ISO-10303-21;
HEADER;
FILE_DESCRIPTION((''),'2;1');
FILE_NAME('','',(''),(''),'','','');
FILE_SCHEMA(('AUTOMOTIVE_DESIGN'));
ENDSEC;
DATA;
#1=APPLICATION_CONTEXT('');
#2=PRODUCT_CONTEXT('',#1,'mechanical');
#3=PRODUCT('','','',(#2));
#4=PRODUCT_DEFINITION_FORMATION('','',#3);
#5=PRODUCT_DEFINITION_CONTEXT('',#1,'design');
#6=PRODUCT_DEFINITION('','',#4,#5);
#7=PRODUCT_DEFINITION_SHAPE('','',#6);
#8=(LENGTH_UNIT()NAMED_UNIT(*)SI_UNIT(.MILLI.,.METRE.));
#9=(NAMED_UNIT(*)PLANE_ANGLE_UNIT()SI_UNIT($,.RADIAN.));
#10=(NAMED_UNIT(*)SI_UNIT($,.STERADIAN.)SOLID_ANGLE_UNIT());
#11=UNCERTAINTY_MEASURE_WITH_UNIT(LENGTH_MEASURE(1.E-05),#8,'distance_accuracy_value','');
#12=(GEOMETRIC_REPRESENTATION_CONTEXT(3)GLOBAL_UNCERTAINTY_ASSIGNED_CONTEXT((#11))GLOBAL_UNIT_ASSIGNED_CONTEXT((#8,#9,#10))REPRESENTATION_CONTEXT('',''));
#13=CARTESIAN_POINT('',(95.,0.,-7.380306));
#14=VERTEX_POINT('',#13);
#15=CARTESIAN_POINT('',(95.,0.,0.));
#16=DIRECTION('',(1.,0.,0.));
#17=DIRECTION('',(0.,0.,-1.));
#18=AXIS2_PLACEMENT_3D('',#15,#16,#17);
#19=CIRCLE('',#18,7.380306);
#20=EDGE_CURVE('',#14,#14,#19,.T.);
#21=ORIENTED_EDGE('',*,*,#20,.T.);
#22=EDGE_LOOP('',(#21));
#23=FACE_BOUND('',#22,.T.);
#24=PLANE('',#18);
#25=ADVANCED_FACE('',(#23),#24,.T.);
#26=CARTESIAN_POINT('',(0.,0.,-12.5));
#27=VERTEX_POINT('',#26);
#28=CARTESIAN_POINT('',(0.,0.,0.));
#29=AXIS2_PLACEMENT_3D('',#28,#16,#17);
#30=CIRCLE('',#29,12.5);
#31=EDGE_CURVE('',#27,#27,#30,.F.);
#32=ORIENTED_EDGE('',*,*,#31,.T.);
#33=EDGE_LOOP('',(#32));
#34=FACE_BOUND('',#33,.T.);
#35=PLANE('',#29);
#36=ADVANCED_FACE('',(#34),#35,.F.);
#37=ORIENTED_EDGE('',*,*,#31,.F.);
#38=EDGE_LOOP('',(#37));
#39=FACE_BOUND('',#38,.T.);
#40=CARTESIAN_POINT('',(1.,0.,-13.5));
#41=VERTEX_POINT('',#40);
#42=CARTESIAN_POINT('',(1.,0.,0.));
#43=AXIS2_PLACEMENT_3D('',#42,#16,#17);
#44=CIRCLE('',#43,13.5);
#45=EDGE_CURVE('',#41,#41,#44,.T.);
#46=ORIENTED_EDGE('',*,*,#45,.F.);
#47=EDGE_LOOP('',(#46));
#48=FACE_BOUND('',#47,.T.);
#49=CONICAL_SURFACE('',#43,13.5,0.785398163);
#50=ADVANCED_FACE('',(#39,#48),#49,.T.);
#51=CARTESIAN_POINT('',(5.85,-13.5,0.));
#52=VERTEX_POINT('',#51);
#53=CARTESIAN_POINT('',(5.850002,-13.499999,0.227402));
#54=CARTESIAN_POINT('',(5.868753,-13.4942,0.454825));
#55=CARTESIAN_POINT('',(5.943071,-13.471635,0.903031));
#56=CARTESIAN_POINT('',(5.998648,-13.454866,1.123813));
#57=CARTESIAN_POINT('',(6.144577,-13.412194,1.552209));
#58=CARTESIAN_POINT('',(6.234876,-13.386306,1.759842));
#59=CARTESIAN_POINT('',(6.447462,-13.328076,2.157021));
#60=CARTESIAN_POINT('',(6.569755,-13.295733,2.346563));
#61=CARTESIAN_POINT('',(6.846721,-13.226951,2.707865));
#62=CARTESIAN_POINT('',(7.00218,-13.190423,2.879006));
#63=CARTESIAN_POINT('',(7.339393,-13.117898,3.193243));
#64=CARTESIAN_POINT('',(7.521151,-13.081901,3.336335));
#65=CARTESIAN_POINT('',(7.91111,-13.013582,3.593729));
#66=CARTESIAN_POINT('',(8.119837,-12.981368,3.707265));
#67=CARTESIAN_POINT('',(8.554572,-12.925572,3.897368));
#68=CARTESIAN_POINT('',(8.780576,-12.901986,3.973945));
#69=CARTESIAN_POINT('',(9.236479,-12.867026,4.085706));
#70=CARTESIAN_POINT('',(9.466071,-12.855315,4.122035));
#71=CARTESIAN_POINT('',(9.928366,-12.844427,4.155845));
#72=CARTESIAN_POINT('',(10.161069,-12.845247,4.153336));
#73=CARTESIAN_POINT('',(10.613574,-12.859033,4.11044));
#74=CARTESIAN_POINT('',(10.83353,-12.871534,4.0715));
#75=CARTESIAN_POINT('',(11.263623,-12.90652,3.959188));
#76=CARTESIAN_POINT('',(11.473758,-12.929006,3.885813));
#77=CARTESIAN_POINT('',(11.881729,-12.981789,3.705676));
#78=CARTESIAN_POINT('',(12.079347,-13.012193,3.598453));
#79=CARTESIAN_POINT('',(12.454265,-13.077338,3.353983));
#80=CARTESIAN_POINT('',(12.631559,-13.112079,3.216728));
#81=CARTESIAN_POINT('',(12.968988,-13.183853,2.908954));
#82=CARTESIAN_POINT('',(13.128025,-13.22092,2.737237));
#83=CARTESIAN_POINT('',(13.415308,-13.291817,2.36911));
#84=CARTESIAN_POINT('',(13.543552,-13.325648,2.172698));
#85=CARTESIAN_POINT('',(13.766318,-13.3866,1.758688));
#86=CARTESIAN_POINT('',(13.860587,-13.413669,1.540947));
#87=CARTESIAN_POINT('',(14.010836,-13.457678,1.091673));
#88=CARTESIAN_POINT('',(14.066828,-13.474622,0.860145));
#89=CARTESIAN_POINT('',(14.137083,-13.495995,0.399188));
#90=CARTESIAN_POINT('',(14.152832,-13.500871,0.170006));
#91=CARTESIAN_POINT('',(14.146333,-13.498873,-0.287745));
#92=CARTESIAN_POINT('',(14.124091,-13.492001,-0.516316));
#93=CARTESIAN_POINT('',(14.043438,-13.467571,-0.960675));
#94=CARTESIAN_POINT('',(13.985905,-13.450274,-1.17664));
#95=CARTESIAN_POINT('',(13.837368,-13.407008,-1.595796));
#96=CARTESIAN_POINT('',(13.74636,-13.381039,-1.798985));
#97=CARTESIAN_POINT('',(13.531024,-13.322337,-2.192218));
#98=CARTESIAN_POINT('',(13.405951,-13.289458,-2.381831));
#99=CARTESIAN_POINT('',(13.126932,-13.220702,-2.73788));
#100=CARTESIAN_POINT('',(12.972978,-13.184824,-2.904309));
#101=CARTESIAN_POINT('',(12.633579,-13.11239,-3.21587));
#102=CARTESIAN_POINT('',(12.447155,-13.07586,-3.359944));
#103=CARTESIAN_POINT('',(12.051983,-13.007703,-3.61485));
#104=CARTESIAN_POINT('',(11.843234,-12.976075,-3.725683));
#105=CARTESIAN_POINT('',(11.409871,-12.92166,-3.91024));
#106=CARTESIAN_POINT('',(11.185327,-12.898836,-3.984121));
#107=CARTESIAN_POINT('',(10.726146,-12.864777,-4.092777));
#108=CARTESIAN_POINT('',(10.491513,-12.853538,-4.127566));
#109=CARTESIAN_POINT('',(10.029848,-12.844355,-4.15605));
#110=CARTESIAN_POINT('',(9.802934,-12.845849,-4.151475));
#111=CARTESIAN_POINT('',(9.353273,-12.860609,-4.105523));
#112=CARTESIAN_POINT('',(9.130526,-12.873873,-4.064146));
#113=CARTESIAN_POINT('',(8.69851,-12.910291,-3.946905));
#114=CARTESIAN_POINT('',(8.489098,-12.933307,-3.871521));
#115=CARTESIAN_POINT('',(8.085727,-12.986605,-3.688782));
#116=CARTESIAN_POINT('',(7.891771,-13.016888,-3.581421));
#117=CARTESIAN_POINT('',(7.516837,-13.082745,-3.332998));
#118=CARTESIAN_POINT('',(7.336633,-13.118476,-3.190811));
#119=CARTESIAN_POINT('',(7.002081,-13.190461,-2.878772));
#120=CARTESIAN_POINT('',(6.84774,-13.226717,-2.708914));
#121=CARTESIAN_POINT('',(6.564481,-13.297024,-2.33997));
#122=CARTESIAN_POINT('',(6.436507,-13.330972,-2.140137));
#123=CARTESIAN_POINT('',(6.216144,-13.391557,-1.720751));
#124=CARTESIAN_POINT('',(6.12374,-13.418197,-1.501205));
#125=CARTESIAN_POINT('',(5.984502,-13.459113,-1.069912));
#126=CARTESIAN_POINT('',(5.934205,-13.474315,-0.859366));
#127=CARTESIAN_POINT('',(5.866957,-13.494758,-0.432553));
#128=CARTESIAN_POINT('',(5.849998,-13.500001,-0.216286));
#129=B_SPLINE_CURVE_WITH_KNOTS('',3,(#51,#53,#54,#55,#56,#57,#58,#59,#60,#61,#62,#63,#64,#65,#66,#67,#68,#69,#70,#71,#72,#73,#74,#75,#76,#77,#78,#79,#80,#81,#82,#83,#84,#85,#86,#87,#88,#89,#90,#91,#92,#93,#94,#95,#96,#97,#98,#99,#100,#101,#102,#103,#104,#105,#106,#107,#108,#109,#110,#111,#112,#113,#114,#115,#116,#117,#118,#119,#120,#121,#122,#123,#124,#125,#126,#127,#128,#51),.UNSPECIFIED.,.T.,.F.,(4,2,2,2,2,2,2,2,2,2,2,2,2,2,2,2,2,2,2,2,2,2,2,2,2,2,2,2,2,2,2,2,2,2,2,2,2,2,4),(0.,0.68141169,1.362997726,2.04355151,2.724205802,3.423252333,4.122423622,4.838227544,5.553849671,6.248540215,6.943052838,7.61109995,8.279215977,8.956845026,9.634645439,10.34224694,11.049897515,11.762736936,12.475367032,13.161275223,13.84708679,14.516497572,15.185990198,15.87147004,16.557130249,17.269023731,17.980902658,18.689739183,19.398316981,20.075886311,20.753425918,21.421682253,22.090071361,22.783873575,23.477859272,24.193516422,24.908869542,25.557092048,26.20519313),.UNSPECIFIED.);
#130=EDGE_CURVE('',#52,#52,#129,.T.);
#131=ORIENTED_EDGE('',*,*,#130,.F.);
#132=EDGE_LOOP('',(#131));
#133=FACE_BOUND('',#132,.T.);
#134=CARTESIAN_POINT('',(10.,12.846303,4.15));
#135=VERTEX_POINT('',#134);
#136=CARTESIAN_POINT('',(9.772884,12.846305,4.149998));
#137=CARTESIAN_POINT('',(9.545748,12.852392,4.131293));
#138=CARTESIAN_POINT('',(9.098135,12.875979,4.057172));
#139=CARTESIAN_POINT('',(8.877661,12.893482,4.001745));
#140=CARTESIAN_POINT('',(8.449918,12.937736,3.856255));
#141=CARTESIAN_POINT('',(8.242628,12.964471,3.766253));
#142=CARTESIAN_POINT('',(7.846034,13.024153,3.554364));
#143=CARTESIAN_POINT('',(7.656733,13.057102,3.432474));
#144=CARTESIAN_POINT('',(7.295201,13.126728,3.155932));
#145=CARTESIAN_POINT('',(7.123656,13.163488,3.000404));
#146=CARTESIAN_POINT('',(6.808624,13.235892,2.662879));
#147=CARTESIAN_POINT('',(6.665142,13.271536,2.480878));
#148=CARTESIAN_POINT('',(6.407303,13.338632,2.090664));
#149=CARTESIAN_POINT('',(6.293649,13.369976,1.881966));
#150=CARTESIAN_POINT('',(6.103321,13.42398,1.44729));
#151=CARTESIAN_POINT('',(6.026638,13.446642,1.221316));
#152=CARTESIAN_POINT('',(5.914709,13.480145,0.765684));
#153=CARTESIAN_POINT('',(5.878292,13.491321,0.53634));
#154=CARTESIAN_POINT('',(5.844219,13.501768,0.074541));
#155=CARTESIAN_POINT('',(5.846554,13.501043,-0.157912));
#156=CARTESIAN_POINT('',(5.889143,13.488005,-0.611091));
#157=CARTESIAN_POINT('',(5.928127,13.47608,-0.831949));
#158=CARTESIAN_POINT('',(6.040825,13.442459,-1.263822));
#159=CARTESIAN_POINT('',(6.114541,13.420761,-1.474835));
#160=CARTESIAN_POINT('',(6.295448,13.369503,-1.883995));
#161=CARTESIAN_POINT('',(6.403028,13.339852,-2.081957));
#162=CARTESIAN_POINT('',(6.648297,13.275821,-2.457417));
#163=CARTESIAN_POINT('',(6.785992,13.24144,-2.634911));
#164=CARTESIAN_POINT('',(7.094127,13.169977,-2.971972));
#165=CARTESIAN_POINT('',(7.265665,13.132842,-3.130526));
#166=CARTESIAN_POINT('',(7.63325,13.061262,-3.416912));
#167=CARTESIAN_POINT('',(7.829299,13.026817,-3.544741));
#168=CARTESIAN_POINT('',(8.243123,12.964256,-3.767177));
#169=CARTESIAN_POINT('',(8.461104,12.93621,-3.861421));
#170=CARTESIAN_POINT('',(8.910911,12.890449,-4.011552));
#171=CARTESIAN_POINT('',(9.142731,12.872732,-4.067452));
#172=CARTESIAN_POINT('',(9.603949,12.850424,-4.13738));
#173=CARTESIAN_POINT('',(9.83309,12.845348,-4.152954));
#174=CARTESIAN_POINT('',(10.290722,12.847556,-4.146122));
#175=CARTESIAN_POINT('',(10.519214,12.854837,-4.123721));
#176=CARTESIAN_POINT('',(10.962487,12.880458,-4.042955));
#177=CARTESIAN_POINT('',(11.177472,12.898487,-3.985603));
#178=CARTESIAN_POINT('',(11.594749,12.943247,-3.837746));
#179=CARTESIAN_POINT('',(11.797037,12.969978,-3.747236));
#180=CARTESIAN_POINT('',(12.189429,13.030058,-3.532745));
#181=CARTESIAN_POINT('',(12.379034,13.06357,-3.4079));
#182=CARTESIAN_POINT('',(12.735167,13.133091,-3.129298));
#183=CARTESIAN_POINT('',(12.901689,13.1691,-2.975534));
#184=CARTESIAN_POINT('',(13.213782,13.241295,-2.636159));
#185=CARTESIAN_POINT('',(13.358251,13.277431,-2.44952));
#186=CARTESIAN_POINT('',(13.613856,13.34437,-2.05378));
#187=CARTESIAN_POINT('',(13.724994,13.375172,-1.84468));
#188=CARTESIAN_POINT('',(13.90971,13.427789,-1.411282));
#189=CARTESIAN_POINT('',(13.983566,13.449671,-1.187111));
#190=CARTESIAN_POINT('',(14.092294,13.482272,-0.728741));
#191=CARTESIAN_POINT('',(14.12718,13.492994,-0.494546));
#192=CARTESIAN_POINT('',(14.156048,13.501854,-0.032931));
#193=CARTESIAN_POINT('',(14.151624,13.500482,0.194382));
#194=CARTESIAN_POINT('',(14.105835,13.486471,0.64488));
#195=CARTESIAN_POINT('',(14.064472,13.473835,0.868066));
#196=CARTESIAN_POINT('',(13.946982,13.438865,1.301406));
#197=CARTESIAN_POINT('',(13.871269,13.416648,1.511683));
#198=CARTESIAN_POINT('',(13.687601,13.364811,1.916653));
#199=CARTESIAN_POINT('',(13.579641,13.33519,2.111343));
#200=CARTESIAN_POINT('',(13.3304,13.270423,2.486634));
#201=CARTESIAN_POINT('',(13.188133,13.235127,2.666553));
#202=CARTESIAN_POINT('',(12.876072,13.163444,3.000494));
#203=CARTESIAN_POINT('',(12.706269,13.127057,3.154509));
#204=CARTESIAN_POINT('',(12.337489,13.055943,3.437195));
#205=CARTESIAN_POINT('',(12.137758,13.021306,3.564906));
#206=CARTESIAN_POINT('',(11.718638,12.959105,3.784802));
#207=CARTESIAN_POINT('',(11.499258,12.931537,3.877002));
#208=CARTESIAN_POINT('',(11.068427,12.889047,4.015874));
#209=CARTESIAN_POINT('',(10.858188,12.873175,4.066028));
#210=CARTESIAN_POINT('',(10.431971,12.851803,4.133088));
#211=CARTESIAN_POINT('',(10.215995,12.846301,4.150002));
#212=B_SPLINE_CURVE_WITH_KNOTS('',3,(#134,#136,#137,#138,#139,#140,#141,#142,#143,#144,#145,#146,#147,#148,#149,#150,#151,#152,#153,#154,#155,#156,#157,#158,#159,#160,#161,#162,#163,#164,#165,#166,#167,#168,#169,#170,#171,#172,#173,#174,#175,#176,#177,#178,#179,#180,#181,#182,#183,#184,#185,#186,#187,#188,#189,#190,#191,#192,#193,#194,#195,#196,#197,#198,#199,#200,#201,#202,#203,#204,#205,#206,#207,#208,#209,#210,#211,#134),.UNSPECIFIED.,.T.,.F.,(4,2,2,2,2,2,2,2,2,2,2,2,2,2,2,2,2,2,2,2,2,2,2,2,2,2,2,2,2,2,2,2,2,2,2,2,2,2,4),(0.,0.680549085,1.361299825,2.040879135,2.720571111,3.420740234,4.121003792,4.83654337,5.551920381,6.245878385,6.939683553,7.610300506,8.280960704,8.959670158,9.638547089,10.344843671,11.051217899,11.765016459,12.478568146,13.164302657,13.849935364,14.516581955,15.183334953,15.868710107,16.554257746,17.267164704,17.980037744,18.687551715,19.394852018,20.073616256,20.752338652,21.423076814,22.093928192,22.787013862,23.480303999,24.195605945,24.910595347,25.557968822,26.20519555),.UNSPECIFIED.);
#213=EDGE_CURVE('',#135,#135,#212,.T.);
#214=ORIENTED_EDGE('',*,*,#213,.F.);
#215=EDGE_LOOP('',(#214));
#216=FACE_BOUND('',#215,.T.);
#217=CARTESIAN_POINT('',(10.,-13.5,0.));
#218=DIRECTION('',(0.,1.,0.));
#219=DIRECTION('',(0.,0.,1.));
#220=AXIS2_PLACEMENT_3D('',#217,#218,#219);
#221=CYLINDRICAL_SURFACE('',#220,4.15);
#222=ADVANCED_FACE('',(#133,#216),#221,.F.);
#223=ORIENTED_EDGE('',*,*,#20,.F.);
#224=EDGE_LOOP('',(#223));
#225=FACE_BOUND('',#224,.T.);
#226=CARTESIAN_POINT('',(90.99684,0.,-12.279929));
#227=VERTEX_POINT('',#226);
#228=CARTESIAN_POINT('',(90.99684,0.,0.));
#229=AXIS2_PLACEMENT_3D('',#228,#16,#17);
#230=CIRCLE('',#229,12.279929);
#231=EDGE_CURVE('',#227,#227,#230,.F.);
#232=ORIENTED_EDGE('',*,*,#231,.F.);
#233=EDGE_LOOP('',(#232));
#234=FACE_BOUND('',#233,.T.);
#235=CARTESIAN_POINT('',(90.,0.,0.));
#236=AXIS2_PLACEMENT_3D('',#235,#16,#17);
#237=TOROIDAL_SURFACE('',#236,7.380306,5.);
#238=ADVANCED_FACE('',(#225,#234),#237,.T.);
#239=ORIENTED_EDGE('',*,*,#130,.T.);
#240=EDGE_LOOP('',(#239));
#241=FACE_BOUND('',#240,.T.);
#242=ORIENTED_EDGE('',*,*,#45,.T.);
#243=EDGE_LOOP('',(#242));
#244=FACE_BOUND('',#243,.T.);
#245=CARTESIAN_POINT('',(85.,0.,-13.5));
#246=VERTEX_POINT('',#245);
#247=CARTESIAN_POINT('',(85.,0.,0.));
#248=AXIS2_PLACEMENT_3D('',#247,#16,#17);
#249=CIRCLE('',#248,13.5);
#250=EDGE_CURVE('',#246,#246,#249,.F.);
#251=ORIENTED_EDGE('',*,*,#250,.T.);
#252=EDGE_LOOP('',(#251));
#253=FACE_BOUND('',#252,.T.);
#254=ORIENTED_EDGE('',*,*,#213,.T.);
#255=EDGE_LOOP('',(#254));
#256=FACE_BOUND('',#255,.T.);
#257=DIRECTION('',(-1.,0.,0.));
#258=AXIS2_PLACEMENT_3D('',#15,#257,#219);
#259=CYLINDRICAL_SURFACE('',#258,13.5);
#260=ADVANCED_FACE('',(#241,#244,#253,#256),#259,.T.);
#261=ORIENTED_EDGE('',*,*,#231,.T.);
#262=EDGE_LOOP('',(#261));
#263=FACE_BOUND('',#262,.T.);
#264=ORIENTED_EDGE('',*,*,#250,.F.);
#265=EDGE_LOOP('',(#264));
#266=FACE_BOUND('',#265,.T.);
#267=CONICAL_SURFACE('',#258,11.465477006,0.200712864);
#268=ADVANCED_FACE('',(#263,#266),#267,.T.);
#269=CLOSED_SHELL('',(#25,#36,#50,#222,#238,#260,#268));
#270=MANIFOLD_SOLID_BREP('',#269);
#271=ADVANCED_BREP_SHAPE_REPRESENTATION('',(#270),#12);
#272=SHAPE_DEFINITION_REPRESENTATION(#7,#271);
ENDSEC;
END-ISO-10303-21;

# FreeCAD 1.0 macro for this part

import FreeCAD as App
import Part
import Sketcher
from FreeCAD import Vector


def edges_at(feature, points):
    """Names of the edges that pass closest to the given points."""
    edges = feature.Shape.Edges
    near = lambda p: min(range(len(edges)), key=lambda i: edges[i].distToShape(Part.Vertex(*p))[0])
    return sorted({f"Edge{near(p) + 1}" for p in points})

doc = App.newDocument("Part")
body = doc.addObject("PartDesign::Body", "Body")

# Sketch on YZ plane
sketch1 = body.newObject("Sketcher::SketchObject", "Sketch")
sketch1.AttachmentSupport = (doc.getObject("YZ_Plane"), [""])
sketch1.MapMode = "FlatFace"
sketch1.addGeometry(Part.Circle(Vector(0, 0, 0), Vector(0, 0, 1), 14), False)
sketch1.addConstraint(Sketcher.Constraint("Coincident", 0, 3, -1, 1))
sketch1.addConstraint(Sketcher.Constraint("Diameter", 0, 27.0))
pad1 = body.newObject("PartDesign::Pad", "Pad")
pad1.Profile = sketch1
pad1.Length = 95
doc.recompute()

chamfer = body.newObject("PartDesign::Chamfer", "Chamfer")
chamfer.Base = (pad1, edges_at(pad1, [(95, 0, 13.5)]))
chamfer.ChamferType = "Two distances"
chamfer.Size = 10
chamfer.Size2 = 2.034523
doc.recompute()

fillet = body.newObject("PartDesign::Fillet", "Fillet")
fillet.Base = (chamfer, edges_at(chamfer, [(95, 0, 11.465)]))
fillet.Radius = 5
doc.recompute()

chamfer2 = body.newObject("PartDesign::Chamfer", "Chamfer001")
chamfer2.Base = (fillet, edges_at(fillet, [(0, 0, 13.5)]))
chamfer2.Size = 1

# Sketch on XZ plane
sketch2 = body.newObject("Sketcher::SketchObject", "Sketch001")
sketch2.AttachmentSupport = (doc.getObject("XZ_Plane"), [""])
sketch2.MapMode = "FlatFace"
sketch2.addGeometry(Part.Circle(Vector(10, 0, 0), Vector(0, 0, 1), 4.2), False)
sketch2.addConstraint(Sketcher.Constraint("PointOnObject", 0, 3, -1))
sketch2.addConstraint(Sketcher.Constraint("Diameter", 0, 8.3))
sketch2.addConstraint(Sketcher.Constraint("DistanceX", -1, 1, 0, 3, 10.0))
pocket1 = body.newObject("PartDesign::Pocket", "Pocket")
pocket1.Profile = sketch2
pocket1.Type = "ThroughAll"
pocket1.Midplane = True

doc.recompute()
